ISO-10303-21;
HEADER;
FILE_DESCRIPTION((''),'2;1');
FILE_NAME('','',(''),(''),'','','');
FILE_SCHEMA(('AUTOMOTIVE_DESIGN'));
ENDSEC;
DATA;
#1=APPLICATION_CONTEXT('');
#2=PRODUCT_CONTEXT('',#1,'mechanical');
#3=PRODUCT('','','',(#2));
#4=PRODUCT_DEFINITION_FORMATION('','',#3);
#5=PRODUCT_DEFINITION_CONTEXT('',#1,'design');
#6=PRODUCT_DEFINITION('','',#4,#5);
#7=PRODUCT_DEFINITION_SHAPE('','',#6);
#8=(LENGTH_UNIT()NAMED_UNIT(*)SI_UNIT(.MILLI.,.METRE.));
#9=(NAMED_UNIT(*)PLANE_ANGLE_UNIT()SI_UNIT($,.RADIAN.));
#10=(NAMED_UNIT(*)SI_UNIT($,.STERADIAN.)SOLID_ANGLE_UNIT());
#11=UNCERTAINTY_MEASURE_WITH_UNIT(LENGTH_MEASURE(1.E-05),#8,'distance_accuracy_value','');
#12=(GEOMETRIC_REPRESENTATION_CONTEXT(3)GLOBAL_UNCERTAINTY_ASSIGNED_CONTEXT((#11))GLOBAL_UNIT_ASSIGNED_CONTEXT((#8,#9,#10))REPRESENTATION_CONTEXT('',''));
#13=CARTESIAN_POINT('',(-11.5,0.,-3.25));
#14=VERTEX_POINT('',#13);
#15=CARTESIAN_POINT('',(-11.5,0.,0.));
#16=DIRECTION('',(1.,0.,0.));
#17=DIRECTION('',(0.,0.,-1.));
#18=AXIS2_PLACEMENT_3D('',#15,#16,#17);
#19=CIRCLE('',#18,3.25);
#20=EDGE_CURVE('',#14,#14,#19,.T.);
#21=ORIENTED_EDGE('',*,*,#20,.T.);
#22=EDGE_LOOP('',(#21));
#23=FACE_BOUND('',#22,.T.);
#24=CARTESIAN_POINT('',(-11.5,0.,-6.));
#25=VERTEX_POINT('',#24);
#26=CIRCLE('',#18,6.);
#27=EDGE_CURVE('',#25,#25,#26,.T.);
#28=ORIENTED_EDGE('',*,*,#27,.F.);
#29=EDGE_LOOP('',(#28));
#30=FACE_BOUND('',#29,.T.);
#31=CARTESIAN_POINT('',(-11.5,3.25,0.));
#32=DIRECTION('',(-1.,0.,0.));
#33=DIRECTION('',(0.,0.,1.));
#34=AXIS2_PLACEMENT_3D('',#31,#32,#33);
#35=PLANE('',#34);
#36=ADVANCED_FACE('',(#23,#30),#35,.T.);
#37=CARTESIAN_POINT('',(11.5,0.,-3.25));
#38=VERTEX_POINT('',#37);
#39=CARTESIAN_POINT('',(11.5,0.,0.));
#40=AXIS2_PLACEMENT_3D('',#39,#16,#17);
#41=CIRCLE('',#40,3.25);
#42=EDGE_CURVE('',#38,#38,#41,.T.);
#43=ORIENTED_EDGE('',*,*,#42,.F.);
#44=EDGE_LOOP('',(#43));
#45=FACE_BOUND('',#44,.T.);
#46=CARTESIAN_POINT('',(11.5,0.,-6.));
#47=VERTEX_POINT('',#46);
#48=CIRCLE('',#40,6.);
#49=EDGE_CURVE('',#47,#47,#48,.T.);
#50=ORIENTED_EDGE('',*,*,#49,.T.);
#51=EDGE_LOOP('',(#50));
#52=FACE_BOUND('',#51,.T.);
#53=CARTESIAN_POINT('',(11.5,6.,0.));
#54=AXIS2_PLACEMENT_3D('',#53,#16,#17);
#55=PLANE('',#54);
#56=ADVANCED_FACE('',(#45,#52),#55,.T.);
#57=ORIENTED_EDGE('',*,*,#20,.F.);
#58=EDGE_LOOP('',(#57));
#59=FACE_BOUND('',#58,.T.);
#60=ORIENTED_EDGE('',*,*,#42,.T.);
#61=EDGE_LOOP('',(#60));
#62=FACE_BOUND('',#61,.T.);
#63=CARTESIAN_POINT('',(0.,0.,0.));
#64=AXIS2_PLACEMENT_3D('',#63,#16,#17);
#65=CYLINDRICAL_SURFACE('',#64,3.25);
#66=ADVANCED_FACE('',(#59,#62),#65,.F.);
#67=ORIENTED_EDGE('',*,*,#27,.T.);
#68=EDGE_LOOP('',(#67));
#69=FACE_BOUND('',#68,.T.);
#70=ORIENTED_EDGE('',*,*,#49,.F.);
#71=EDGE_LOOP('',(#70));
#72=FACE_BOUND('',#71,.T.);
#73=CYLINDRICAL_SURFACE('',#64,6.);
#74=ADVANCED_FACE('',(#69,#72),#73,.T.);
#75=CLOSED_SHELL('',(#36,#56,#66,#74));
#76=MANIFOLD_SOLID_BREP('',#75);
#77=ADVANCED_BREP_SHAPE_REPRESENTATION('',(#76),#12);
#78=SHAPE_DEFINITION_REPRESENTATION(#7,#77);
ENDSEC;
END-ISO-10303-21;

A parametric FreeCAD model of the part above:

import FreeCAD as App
import Part
import Sketcher
from FreeCAD import Vector
Q = App.Units.Quantity


def add_polygon(sketch, points):
    """Adds a closed chain of lines whose ends are joined by coincident constraints."""
    first, n = sketch.GeometryCount, len(points)
    for a, b in zip(points, points[1:] + points[:1]):
        sketch.addGeometry(Part.LineSegment(App.Vector(*a, 0), App.Vector(*b, 0)), False)
    for i in range(n):
        sketch.addConstraint(Sketcher.Constraint("Coincident", first + i, 2, first + (i + 1) % n, 1))

doc = App.newDocument("Part")
body = doc.addObject("PartDesign::Body", "Body")

# Sketch on XY plane
sketch1 = body.newObject("Sketcher::SketchObject", "Sketch")
sketch1.AttachmentSupport = (doc.getObject("XY_Plane"), [""])
sketch1.MapMode = "FlatFace"
add_polygon(sketch1, [(-11.5, 6), (-11.5, 3.2), (11.5, 3.2), (11.5, 6)])  # lines 0-3
sketch1.addConstraint([
    Sketcher.Constraint("Vertical", 0),
    Sketcher.Constraint("Horizontal", 1),
    Sketcher.Constraint("Vertical", 2),
    Sketcher.Constraint("Horizontal", 3),
    Sketcher.Constraint("DistanceX", 1, 1, 1, 2, Q("23 mm")),
    Sketcher.Constraint("DistanceY", -1, 1, 2, 2, Q("6 mm")),
    Sketcher.Constraint("DistanceY", 0, 2, 0, 1, Q("2.75 mm")),
    Sketcher.Constraint("DistanceX", 0, 2, -1, 1, Q("11.5 mm")),
])
revolution = body.newObject("PartDesign::Revolution", "Revolution")
revolution.Profile = sketch1
revolution.ReferenceAxis = (sketch1, ["H_Axis"])
revolution.Angle = 360

doc.recompute()
